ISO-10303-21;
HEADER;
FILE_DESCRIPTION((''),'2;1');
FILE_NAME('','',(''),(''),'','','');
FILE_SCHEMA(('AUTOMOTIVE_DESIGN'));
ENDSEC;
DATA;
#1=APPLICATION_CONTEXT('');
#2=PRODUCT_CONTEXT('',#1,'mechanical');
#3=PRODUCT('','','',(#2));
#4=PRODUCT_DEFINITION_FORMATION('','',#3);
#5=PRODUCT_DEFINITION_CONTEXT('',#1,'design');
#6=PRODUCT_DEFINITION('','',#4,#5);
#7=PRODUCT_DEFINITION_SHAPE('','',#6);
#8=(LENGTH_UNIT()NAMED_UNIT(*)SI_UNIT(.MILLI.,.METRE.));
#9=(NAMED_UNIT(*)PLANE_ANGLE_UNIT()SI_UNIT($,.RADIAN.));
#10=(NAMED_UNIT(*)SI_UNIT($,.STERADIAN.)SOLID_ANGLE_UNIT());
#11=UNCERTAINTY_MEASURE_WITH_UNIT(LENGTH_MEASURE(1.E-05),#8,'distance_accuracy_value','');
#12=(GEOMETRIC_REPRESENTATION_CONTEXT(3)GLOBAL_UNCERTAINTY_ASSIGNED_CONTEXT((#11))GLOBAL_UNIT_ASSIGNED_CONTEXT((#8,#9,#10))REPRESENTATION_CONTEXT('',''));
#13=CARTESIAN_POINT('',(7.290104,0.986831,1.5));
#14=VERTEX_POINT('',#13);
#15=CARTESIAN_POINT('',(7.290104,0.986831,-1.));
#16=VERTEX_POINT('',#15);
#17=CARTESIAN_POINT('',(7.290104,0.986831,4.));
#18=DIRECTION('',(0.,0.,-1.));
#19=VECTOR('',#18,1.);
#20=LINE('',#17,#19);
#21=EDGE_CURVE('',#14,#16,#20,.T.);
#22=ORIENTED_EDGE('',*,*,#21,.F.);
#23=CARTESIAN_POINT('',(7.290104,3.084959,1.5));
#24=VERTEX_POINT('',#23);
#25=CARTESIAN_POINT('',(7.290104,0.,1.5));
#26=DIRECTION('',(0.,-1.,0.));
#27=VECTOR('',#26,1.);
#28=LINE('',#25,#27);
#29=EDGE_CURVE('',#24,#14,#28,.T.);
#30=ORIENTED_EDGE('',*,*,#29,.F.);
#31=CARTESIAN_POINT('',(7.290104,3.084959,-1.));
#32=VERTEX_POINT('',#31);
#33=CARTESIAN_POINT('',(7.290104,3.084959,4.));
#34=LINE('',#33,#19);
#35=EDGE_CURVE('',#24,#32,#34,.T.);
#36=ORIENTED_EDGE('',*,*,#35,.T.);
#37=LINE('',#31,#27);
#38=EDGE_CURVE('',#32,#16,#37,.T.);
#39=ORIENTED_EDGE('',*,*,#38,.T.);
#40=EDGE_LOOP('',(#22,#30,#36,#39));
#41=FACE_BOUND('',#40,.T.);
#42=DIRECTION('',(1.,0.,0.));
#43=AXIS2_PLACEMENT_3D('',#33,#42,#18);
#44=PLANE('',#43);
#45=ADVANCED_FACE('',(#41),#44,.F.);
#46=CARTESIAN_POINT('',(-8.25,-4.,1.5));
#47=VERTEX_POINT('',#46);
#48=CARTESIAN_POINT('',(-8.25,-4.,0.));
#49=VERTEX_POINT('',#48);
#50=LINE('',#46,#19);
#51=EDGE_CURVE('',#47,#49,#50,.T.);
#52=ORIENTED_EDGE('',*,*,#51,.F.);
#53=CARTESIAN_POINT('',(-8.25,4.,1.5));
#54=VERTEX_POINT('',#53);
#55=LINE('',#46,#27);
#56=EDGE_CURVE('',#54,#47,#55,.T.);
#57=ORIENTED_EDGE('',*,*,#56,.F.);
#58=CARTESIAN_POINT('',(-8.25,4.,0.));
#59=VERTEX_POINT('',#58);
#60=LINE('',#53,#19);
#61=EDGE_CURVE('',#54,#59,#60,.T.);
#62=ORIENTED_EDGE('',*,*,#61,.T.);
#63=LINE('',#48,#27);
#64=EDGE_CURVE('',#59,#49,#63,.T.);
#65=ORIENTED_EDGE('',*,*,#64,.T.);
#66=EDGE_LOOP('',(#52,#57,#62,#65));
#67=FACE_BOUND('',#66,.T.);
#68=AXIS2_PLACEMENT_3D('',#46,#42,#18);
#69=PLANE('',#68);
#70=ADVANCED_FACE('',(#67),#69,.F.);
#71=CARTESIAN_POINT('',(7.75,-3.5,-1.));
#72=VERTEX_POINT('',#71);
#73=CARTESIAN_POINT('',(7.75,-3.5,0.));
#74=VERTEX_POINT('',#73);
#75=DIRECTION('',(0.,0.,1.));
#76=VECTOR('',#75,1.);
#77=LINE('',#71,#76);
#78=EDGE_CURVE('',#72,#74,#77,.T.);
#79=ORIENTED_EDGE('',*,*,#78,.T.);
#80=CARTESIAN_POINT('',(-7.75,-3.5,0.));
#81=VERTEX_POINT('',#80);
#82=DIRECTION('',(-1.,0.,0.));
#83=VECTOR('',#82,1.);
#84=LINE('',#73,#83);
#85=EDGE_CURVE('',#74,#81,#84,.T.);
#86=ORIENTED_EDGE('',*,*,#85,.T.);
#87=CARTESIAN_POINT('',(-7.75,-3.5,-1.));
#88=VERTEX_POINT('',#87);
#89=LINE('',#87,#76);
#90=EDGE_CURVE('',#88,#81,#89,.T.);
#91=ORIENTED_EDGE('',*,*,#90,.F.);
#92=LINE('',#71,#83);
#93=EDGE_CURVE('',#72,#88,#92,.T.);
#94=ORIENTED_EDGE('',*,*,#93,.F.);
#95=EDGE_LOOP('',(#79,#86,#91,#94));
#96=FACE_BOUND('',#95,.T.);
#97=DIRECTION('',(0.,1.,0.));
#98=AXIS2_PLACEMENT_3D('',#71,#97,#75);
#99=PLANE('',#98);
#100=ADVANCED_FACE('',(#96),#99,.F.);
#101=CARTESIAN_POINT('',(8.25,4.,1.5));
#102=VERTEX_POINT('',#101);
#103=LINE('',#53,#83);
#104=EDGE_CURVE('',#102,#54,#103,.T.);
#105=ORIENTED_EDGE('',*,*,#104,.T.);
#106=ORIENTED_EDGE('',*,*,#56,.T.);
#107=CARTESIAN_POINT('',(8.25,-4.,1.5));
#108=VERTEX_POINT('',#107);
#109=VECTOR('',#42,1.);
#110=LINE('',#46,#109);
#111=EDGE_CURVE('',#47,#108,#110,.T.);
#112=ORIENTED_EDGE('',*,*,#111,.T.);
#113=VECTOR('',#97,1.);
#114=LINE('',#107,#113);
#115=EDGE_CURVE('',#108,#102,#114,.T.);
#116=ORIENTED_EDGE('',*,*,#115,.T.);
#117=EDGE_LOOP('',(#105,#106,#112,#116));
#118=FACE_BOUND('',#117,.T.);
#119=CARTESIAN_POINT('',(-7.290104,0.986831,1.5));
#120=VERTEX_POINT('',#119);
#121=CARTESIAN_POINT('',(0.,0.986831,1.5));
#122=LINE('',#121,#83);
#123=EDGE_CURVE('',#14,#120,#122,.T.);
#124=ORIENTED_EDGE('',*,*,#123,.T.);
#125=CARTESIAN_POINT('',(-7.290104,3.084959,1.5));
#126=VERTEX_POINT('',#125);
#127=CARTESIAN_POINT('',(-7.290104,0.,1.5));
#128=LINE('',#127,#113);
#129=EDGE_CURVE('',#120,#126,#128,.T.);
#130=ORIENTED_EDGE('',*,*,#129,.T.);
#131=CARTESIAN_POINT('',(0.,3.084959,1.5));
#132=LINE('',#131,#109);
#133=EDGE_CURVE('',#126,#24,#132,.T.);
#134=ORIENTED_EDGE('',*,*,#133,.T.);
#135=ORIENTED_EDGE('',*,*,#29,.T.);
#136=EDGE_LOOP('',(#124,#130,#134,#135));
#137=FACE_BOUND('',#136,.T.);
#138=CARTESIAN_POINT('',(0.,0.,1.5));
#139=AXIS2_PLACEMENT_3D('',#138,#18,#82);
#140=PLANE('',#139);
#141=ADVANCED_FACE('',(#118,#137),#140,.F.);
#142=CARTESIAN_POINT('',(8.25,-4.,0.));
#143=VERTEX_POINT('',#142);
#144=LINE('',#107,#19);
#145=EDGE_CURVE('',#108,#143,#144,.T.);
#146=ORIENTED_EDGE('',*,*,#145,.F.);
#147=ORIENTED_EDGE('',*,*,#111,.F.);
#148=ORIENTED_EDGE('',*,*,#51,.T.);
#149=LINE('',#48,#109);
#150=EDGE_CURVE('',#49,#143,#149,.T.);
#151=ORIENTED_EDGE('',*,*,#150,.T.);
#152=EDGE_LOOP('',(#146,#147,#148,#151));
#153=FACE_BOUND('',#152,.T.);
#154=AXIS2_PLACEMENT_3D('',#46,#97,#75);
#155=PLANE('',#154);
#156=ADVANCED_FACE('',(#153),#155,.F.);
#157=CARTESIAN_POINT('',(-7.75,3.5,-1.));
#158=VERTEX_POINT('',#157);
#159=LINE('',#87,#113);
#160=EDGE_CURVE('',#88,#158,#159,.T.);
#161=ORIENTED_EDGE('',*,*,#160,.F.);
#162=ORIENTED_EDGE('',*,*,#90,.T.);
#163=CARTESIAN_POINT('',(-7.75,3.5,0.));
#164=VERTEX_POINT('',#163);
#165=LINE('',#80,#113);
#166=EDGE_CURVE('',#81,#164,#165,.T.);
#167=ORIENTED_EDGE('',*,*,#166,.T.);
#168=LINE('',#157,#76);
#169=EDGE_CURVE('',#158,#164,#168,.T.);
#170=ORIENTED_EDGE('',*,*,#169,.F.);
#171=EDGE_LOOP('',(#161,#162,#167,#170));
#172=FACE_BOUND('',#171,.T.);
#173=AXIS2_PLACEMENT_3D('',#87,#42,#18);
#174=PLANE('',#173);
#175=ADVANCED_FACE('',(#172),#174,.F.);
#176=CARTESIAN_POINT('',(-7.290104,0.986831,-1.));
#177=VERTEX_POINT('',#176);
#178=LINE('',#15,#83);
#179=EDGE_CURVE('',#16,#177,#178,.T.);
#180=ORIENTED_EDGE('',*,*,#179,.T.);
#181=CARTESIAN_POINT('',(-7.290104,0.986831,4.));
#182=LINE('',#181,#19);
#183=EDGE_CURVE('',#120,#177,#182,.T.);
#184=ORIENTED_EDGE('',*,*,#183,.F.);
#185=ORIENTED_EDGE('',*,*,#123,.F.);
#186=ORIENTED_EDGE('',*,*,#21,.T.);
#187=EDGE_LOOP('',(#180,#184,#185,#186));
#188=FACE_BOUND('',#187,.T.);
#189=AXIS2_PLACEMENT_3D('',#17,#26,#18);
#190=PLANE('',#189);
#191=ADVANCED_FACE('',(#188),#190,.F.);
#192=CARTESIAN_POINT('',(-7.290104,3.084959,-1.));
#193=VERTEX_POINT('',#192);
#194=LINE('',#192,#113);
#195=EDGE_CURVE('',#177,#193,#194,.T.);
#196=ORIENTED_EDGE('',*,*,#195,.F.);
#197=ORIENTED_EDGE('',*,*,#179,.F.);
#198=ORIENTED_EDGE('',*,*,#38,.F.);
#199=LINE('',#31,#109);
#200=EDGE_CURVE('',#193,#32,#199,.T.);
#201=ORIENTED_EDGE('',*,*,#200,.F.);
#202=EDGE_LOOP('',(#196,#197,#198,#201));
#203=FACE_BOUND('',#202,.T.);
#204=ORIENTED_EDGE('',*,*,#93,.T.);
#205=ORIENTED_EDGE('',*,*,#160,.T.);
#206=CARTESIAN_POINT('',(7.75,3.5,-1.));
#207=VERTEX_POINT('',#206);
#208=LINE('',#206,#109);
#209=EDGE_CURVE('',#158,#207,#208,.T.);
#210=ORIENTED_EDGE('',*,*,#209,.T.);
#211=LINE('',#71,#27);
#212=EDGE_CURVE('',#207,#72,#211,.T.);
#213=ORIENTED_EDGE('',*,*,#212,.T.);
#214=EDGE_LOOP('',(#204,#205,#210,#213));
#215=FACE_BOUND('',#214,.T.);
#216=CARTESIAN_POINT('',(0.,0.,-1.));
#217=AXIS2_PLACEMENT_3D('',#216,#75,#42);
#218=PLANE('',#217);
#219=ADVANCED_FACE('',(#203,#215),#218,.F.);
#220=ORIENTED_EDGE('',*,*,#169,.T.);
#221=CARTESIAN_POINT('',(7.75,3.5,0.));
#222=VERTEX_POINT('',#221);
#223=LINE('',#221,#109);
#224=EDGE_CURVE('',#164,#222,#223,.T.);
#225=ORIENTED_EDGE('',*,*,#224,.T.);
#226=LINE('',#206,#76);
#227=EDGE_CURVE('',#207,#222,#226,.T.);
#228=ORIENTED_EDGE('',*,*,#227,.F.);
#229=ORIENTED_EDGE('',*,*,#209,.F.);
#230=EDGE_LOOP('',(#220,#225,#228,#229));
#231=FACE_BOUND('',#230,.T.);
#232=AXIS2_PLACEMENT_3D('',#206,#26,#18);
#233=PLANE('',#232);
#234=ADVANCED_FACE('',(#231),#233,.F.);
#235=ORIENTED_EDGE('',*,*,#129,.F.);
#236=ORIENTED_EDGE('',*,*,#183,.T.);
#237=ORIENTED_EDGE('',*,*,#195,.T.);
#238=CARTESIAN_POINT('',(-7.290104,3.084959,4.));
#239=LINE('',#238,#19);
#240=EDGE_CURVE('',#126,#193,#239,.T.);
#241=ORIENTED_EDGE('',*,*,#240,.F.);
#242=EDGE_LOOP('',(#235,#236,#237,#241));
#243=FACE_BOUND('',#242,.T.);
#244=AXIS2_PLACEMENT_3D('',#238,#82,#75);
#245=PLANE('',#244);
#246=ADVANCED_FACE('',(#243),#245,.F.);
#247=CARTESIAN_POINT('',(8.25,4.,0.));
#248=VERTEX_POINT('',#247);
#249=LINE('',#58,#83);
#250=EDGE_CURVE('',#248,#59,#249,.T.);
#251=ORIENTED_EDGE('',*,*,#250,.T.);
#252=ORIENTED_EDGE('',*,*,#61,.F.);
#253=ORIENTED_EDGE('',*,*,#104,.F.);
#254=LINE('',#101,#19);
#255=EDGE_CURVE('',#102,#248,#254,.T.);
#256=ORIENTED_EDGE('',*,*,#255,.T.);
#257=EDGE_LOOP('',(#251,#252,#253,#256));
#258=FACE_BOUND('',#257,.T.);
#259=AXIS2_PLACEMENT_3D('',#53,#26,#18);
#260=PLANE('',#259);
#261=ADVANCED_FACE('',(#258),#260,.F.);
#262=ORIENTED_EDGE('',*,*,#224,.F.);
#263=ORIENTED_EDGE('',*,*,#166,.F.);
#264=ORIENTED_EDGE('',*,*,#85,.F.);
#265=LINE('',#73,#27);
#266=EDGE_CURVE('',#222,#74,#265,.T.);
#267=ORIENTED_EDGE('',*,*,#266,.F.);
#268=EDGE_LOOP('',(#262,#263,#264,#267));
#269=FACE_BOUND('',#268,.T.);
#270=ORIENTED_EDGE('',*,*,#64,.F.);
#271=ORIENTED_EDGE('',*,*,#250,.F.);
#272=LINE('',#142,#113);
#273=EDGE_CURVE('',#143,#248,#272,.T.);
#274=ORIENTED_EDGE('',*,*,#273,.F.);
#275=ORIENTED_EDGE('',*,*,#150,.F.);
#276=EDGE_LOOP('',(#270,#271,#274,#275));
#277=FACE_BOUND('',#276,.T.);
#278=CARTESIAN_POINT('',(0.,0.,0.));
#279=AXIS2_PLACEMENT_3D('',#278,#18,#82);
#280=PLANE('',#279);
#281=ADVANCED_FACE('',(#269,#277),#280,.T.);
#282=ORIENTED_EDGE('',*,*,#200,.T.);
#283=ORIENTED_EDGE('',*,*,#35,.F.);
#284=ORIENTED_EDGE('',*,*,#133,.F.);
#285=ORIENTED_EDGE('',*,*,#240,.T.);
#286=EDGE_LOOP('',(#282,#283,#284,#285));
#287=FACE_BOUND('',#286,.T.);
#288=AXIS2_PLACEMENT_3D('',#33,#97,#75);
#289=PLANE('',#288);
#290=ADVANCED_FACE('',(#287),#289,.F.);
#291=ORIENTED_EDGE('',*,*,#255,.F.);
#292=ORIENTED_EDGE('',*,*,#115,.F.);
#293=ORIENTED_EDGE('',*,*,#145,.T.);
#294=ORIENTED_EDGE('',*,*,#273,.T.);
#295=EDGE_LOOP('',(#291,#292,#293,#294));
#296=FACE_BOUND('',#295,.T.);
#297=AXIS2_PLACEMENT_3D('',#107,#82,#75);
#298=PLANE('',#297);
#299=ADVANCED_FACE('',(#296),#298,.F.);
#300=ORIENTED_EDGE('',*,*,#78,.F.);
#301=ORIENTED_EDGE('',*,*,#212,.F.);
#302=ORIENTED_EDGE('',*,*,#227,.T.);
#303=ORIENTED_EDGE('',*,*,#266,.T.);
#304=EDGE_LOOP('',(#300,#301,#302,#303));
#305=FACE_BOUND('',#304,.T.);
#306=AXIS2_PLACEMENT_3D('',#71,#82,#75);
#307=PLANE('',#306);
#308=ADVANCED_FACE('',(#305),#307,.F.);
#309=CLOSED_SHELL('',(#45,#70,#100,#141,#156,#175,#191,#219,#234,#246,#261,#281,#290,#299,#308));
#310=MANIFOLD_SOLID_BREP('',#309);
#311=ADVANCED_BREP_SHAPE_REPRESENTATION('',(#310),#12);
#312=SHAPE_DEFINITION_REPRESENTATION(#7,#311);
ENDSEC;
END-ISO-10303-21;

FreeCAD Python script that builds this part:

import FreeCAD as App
import Part
import Sketcher
Q = App.Units.Quantity


def add_polygon(sketch, points):
    """Adds a closed chain of lines whose ends are joined by coincident constraints."""
    first, n = sketch.GeometryCount, len(points)
    for a, b in zip(points, points[1:] + points[:1]):
        sketch.addGeometry(Part.LineSegment(App.Vector(*a, 0), App.Vector(*b, 0)), False)
    for i in range(n):
        sketch.addConstraint(Sketcher.Constraint("Coincident", first + i, 2, first + (i + 1) % n, 1))

doc = App.newDocument("Part")
params = doc.addObject("Spreadsheet::Sheet", "Params")
for row, (alias, value) in enumerate([
    ("sketch1_height", "8 mm"),
    ("sketch1_width", "16.5 mm"),
    ("pad1_length", "1.5 mm"),
    ("sketch2_height", "7 mm"),
    ("sketch2_width", "15.5 mm"),
    ("pad2_length", "1 mm"),
    ("pocket1_length", "5 mm"),
], start=1):
    params.set(f"A{row}", alias)
    params.set(f"B{row}", "=" + value)
    params.setAlias(f"B{row}", alias)

body = doc.addObject("PartDesign::Body", "Body")

# Sketch on XY plane
sketch1 = body.newObject("Sketcher::SketchObject", "Sketch")
sketch1.AttachmentSupport = (doc.getObject("XY_Plane"), [""])
sketch1.MapMode = "FlatFace"
add_polygon(sketch1, [(-8.25, 4), (-8.25, -4), (8.25, -4), (8.25, 4)])  # lines 0-3
sketch1.addConstraint(Sketcher.Constraint("Vertical", 0))
sketch1.addConstraint(Sketcher.Constraint("Horizontal", 1))
sketch1.addConstraint(Sketcher.Constraint("Vertical", 2))
sketch1.addConstraint(Sketcher.Constraint("Horizontal", 3))
sketch1.addConstraint(Sketcher.Constraint("Symmetric", 0, 2, 2, 2, -1, 1))
sketch1.addConstraint(Sketcher.Constraint("DistanceY", 0, 2, 0, 1, Q("8 mm")))
sketch1.addConstraint(Sketcher.Constraint("DistanceX", 1, 1, 1, 2, Q("16.5 mm")))
sketch1.setExpression("Constraints[9]", "Params.sketch1_height")
sketch1.setExpression("Constraints[10]", "Params.sketch1_width")
pad1 = body.newObject("PartDesign::Pad", "Pad")
pad1.Profile = sketch1
pad1.setExpression("Length", "Params.pad1_length")

# Sketch on XY plane
sketch2 = body.newObject("Sketcher::SketchObject", "Sketch001")
sketch2.AttachmentSupport = (doc.getObject("XY_Plane"), [""])
sketch2.MapMode = "FlatFace"
add_polygon(sketch2, [(7.75, 3.5), (7.75, -3.5), (-7.75, -3.5), (-7.75, 3.5)])  # lines 0-3
sketch2.addConstraint(Sketcher.Constraint("Vertical", 0))
sketch2.addConstraint(Sketcher.Constraint("Horizontal", 1))
sketch2.addConstraint(Sketcher.Constraint("Vertical", 2))
sketch2.addConstraint(Sketcher.Constraint("Horizontal", 3))
sketch2.addConstraint(Sketcher.Constraint("Symmetric", 0, 2, 2, 2, -1, 1))
sketch2.addConstraint(Sketcher.Constraint("DistanceY", 0, 2, 0, 1, Q("7 mm")))
sketch2.addConstraint(Sketcher.Constraint("DistanceX", 1, 2, 1, 1, Q("15.5 mm")))
sketch2.setExpression("Constraints[9]", "Params.sketch2_height")
sketch2.setExpression("Constraints[10]", "Params.sketch2_width")
pad2 = body.newObject("PartDesign::Pad", "Pad001")
pad2.Profile = sketch2
pad2.setExpression("Length", "Params.pad2_length")
pad2.Reversed = True

# Sketch on XY plane
sketch3 = body.newObject("Sketcher::SketchObject", "Sketch002")
sketch3.AttachmentSupport = (doc.getObject("XY_Plane"), [""])
sketch3.MapMode = "FlatFace"
sketch3.AttachmentOffset = App.Placement(App.Vector(0, 0, -1), App.Rotation())
add_polygon(sketch3, [(7.290104, 3.084959), (7.290104, 0.986831), (-7.290104, 0.986831), (-7.290104, 3.084959)])  # lines 0-3
sketch3.addConstraint(Sketcher.Constraint("Vertical", 0))
sketch3.addConstraint(Sketcher.Constraint("Horizontal", 1))
sketch3.addConstraint(Sketcher.Constraint("Vertical", 2))
sketch3.addConstraint(Sketcher.Constraint("Horizontal", 3))
sketch3.addConstraint(Sketcher.Constraint("DistanceX", 1, 2, 1, 1, Q("14.580208 mm")))
sketch3.addConstraint(Sketcher.Constraint("DistanceY", 0, 2, 0, 1, Q("2.098127 mm")))
sketch3.addConstraint(Sketcher.Constraint("DistanceY", -1, 1, 0, 2, Q("0.986831 mm")))
sketch3.addConstraint(Sketcher.Constraint("DistanceX", -1, 1, 0, 2, Q("7.290104 mm")))
pocket1 = body.newObject("PartDesign::Pocket", "Pocket")
pocket1.Profile = sketch3
pocket1.setExpression("Length", "Params.pocket1_length")
pocket1.Reversed = True

doc.recompute()
